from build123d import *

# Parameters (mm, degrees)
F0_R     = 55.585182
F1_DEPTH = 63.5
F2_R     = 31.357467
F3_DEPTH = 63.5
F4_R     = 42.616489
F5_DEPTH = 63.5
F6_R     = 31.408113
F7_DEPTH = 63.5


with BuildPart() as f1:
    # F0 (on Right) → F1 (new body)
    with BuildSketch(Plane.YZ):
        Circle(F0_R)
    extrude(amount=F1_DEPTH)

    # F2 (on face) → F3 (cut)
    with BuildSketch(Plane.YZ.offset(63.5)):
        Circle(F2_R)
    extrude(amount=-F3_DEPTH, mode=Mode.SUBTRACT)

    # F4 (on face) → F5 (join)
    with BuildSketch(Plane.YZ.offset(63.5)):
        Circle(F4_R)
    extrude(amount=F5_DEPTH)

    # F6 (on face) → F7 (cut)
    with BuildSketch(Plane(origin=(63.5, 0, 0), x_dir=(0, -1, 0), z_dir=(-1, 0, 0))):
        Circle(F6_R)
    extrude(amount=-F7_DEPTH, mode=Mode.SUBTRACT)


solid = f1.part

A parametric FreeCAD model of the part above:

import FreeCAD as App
import Part
import Sketcher
from FreeCAD import Vector
Q = App.Units.Quantity

doc = App.newDocument("Part")
body = doc.addObject("PartDesign::Body", "Body")

# Sketch on YZ plane
sketch1 = body.newObject("Sketcher::SketchObject", "Sketch")
sketch1.AttachmentSupport = (doc.getObject("YZ_Plane"), [""])
sketch1.MapMode = "FlatFace"
sketch1.addGeometry(Part.Circle(Vector(0, 0, 0), Vector(0, 0, 1), 56), False)
sketch1.addConstraint(Sketcher.Constraint("Coincident", 0, 3, -1, 1))
sketch1.addConstraint(Sketcher.Constraint("Diameter", 0, 111.170364))
pad1 = body.newObject("PartDesign::Pad", "Pad")
pad1.Profile = sketch1
pad1.Length = Q("2.5 in")

# Sketch on YZ plane
sketch2 = body.newObject("Sketcher::SketchObject", "Sketch001")
sketch2.AttachmentSupport = (doc.getObject("YZ_Plane"), [""])
sketch2.MapMode = "FlatFace"
sketch2.AttachmentOffset = App.Placement(Vector(0, 0, 2.5 * 25.4), App.Rotation())
sketch2.addGeometry(Part.Circle(Vector(0, 0, 0), Vector(0, 0, 1), 31), False)
sketch2.addConstraint(Sketcher.Constraint("Coincident", 0, 3, -1, 1))
sketch2.addConstraint(Sketcher.Constraint("Diameter", 0, 62.714934))
pocket1 = body.newObject("PartDesign::Pocket", "Pocket")
pocket1.Profile = sketch2
pocket1.Length = Q("2.5 in")

# Sketch on YZ plane
sketch3 = body.newObject("Sketcher::SketchObject", "Sketch002")
sketch3.AttachmentSupport = (doc.getObject("YZ_Plane"), [""])
sketch3.MapMode = "FlatFace"
sketch3.AttachmentOffset = App.Placement(Vector(0, 0, 2.5 * 25.4), App.Rotation())
sketch3.addGeometry(Part.Circle(Vector(0, 0, 0), Vector(0, 0, 1), 43), False)
sketch3.addConstraint(Sketcher.Constraint("Coincident", 0, 3, -1, 1))
sketch3.addConstraint(Sketcher.Constraint("Diameter", 0, 85.232978))
pad2 = body.newObject("PartDesign::Pad", "Pad001")
pad2.Profile = sketch3
pad2.Length = Q("2.5 in")

# Sketch on YZ plane
sketch4 = body.newObject("Sketcher::SketchObject", "Sketch003")
sketch4.AttachmentSupport = (doc.getObject("YZ_Plane"), [""])
sketch4.MapMode = "FlatFace"
sketch4.AttachmentOffset = App.Placement(Vector(0, 0, 2.5 * 25.4), App.Rotation())
sketch4.addGeometry(Part.Circle(Vector(0, 0, 0), Vector(0, 0, 1), 31), False)
sketch4.addConstraint(Sketcher.Constraint("Coincident", 0, 3, -1, 1))
sketch4.addConstraint(Sketcher.Constraint("Diameter", 0, 62.816226))
pocket2 = body.newObject("PartDesign::Pocket", "Pocket001")
pocket2.Profile = sketch4
pocket2.Length = Q("2.5 in")
pocket2.Reversed = True

doc.recompute()
